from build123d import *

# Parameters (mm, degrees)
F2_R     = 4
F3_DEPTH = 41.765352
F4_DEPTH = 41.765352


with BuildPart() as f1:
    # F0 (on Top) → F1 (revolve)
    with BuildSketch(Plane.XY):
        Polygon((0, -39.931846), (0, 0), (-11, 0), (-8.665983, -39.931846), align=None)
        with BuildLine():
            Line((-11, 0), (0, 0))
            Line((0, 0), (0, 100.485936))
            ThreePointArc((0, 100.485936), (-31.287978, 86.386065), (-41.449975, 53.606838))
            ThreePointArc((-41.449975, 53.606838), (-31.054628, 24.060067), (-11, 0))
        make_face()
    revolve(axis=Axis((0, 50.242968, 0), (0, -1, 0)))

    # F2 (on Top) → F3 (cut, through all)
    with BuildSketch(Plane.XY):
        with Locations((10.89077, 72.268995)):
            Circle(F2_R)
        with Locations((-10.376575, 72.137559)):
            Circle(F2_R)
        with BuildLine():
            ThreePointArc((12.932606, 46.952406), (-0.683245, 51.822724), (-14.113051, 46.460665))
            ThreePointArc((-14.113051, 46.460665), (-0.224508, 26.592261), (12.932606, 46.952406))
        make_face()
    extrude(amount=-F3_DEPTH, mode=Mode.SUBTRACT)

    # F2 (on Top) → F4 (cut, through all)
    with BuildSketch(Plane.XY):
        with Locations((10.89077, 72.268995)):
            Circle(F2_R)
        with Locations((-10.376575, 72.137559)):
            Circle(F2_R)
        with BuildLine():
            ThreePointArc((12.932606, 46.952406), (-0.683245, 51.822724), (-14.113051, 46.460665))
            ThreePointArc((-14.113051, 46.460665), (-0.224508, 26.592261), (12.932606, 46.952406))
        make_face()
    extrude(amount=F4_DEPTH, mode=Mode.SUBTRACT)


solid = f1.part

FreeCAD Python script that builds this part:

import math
import FreeCAD as App
import Part
import Sketcher

V = App.Vector

doc = App.newDocument("Part")
params = doc.addObject("Spreadsheet::Sheet", "Params")
for row, (alias, value) in enumerate([
    ("sketch1_length", "40 mm"),
    ("revolution_angle", "360 deg"),
    ("sketch2_diameter", "8 mm"),
    ("sketch3_diameter", "8 mm"),
], start=1):
    params.set(f"A{row}", alias)
    params.set(f"B{row}", "=" + value)
    params.setAlias(f"B{row}", alias)

body = doc.addObject("PartDesign::Body", "Body")

# Sketch on XY plane
sketch1 = body.newObject("Sketcher::SketchObject", "Sketch")
sketch1.AttachmentSupport = (doc.getObject("XY_Plane"), [""])
sketch1.MapMode = "FlatFace"
sketch1.addGeometry([
    Part.LineSegment(V(0, -40, 0), V(0, 100, 0)),  # 0
    Part.ArcOfCircle(Part.Circle(V(0, 59, 0), V(0, 0, 1), 42), math.radians(90), math.radians(187)),  # 1
    Part.ArcOfCircle(Part.Circle(V(46, 68, 0), V(0, 0, 1), 88), math.radians(-171), math.radians(-130)),  # 2
    Part.LineSegment(V(-11, 0, 0), V(-9, -40, 0)),  # 3
    Part.LineSegment(V(-9, -40, 0), V(0, -40, 0)),  # 4
], False)
sketch1.addConstraint([
    Sketcher.Constraint("Coincident", 0, 2, 1, 1),
    Sketcher.Constraint("Coincident", 1, 2, 2, 1),
    Sketcher.Constraint("Coincident", 2, 2, 3, 1),
    Sketcher.Constraint("Coincident", 3, 2, 4, 1),
    Sketcher.Constraint("Coincident", 4, 2, 0, 1),
    Sketcher.Constraint("Vertical", 0),
    Sketcher.Constraint("Horizontal", 4),
    Sketcher.Constraint("PointOnObject", 1, 3, -2),
    Sketcher.Constraint("PointOnObject", 0, 2, -2),
    Sketcher.Constraint("PointOnObject", 2, 2, -1),
    Sketcher.Constraint("Distance", 3, 40.0),
    Sketcher.Constraint("DistanceX", 2, 2, -1, 1, 11.0),
    Sketcher.Constraint("Radius", 1, 41.764352),
    Sketcher.Constraint("Radius", 2, 88.315044),
    Sketcher.Constraint("DistanceY", 0, 1, 0, 2, 140.417782),
    Sketcher.Constraint("DistanceX", 4, 1, 4, 2, 8.665983),
    Sketcher.Constraint("DistanceY", -1, 1, 1, 2, 53.606838),
])
sketch1.setExpression("Constraints[10]", "Params.sketch1_length")
revolution = body.newObject("PartDesign::Revolution", "Revolution")
revolution.Profile = sketch1
revolution.ReferenceAxis = (sketch1, ["V_Axis"])
revolution.setExpression("Angle", "Params.revolution_angle")

# Sketch on XY plane
sketch2 = body.newObject("Sketcher::SketchObject", "Sketch001")
sketch2.AttachmentSupport = (doc.getObject("XY_Plane"), [""])
sketch2.MapMode = "FlatFace"
sketch2.addGeometry([
    Part.Circle(V(10.9, 72.3, 0), V(0, 0, 1), 4),
    Part.Circle(V(-10.4, 72.1, 0), V(0, 0, 1), 4),
    Part.ArcOfCircle(Part.Circle(V(-0.3, 31.4, 0), V(0, 0, 1), 20.4), math.radians(50), math.radians(132)),
    Part.ArcOfCircle(Part.Circle(V(-0.5, 41.2, 0), V(0, 0, 1), 14.6), math.radians(159), math.radians(383)),
], False)
sketch2.addConstraint([
    Sketcher.Constraint("Coincident", 2, 1, 3, 2),
    Sketcher.Constraint("Coincident", 3, 1, 2, 2),
    Sketcher.Constraint("Equal", 0, 1),
    Sketcher.Constraint("Diameter", 0, 8.0),
    Sketcher.Constraint("Radius", 2, 20.43287),
    Sketcher.Constraint("Radius", 3, 14.60525),
    Sketcher.Constraint("DistanceX", -1, 1, 0, 3, 10.89077),
    Sketcher.Constraint("DistanceY", -1, 1, 1, 3, 72.137559),
    Sketcher.Constraint("DistanceY", -1, 1, 2, 3, 31.393231),
    Sketcher.Constraint("DistanceX", 3, 1, -1, 1, 14.113051),
    Sketcher.Constraint("DistanceX", 1, 3, 3, 3, 9.886561),
    Sketcher.Constraint("DistanceY", 3, 3, 1, 3, 30.942461),
    Sketcher.Constraint("DistanceX", 3, 3, 2, 1, 13.42262),
    Sketcher.Constraint("DistanceY", 2, 1, 0, 3, 25.316589),
])
sketch2.setExpression("Constraints[3]", "Params.sketch2_diameter")
pocket1 = body.newObject("PartDesign::Pocket", "Pocket")
pocket1.Profile = sketch2
pocket1.Type = "ThroughAll"

# Sketch on XY plane
sketch3 = body.newObject("Sketcher::SketchObject", "Sketch002")
sketch3.AttachmentSupport = (doc.getObject("XY_Plane"), [""])
sketch3.MapMode = "FlatFace"
sketch3.addGeometry([
    Part.Circle(V(10.9, 72.3, 0), V(0, 0, 1), 4),
    Part.Circle(V(-10.4, 72.1, 0), V(0, 0, 1), 4),
    Part.ArcOfCircle(Part.Circle(V(-0.3, 31.4, 0), V(0, 0, 1), 20.4), math.radians(50), math.radians(132)),
    Part.ArcOfCircle(Part.Circle(V(-0.5, 41.2, 0), V(0, 0, 1), 14.6), math.radians(159), math.radians(383)),
], False)
sketch3.addConstraint([
    Sketcher.Constraint("Coincident", 2, 1, 3, 2),
    Sketcher.Constraint("Coincident", 3, 1, 2, 2),
    Sketcher.Constraint("Equal", 0, 1),
    Sketcher.Constraint("Diameter", 0, 8.0),
    Sketcher.Constraint("Radius", 2, 20.43287),
    Sketcher.Constraint("Radius", 3, 14.60525),
    Sketcher.Constraint("DistanceX", -1, 1, 0, 3, 10.89077),
    Sketcher.Constraint("DistanceY", -1, 1, 1, 3, 72.137559),
    Sketcher.Constraint("DistanceY", -1, 1, 2, 3, 31.393231),
    Sketcher.Constraint("DistanceX", 3, 1, -1, 1, 14.113051),
    Sketcher.Constraint("DistanceX", 1, 3, 3, 3, 9.886561),
    Sketcher.Constraint("DistanceY", 3, 3, 1, 3, 30.942461),
    Sketcher.Constraint("DistanceX", 3, 3, 2, 1, 13.42262),
    Sketcher.Constraint("DistanceY", 2, 1, 0, 3, 25.316589),
])
sketch3.setExpression("Constraints[3]", "Params.sketch3_diameter")
pocket2 = body.newObject("PartDesign::Pocket", "Pocket001")
pocket2.Profile = sketch3
pocket2.Type = "ThroughAll"
pocket2.Reversed = True

doc.recompute()
